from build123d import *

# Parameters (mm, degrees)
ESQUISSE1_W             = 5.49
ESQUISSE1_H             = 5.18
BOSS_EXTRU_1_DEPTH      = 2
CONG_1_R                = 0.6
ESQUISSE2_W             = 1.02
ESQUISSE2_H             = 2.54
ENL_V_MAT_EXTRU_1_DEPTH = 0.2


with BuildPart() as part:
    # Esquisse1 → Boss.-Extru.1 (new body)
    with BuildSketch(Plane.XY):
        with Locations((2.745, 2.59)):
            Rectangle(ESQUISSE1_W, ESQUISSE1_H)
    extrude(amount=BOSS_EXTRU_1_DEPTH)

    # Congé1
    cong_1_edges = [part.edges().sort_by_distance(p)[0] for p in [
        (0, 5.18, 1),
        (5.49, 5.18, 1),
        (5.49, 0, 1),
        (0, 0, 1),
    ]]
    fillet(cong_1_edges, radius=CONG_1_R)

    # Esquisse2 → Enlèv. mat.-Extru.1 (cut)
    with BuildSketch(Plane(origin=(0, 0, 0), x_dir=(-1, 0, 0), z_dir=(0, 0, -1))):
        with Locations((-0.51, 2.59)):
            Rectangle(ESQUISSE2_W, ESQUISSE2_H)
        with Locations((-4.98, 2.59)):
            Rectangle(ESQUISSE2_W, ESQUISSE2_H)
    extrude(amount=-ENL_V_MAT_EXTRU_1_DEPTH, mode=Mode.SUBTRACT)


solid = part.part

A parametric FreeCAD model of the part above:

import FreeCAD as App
import Part
import Sketcher
from FreeCAD import Vector


def edges_at(feature, points):
    """Names of the edges that pass closest to the given points."""
    edges = feature.Shape.Edges
    near = lambda p: min(range(len(edges)), key=lambda i: edges[i].distToShape(Part.Vertex(*p))[0])
    return sorted({f"Edge{near(p) + 1}" for p in points})


def add_polygon(sketch, points):
    """Adds a closed chain of lines whose ends are joined by coincident constraints."""
    first, n = sketch.GeometryCount, len(points)
    for a, b in zip(points, points[1:] + points[:1]):
        sketch.addGeometry(Part.LineSegment(App.Vector(*a, 0), App.Vector(*b, 0)), False)
    for i in range(n):
        sketch.addConstraint(Sketcher.Constraint("Coincident", first + i, 2, first + (i + 1) % n, 1))

doc = App.newDocument("Part")
body = doc.addObject("PartDesign::Body", "Body")

# Sketch on XY plane
sketch1 = body.newObject("Sketcher::SketchObject", "Sketch")
sketch1.AttachmentSupport = (doc.getObject("XY_Plane"), [""])
sketch1.MapMode = "FlatFace"
add_polygon(sketch1, [(0, 5), (0, 0), (5, 0), (5, 5)])  # lines 0-3
sketch1.addConstraint([
    Sketcher.Constraint("Vertical", 0),
    Sketcher.Constraint("Horizontal", 1),
    Sketcher.Constraint("Vertical", 2),
    Sketcher.Constraint("Horizontal", 3),
    Sketcher.Constraint("Coincident", 0, 2, -1, 1),
    Sketcher.Constraint("DistanceX", 1, 1, 1, 2, 5.49),
    Sketcher.Constraint("DistanceY", 0, 2, 0, 1, 5.18),
])
pad1 = body.newObject("PartDesign::Pad", "Pad")
pad1.Profile = sketch1
pad1.Length = 2
doc.recompute()

fillet = body.newObject("PartDesign::Fillet", "Fillet")
fillet.Base = (pad1, edges_at(pad1, [
    (0, 5.18, 1),
    (5.49, 5.18, 1),
    (5.49, 0, 1),
    (0, 0, 1),
]))
fillet.Radius = 0.6

# Sketch on XY plane
sketch2 = body.newObject("Sketcher::SketchObject", "Sketch001")
sketch2.AttachmentSupport = (doc.getObject("XY_Plane"), [""])
sketch2.MapMode = "FlatFace"
add_polygon(sketch2, [(1, 3.9), (1, 1.3), (0, 1.3), (0, 3.9)])  # lines 0-3
add_polygon(sketch2, [(5.5, 3.9), (5.5, 1.3), (4.5, 1.3), (4.5, 3.9)])  # lines 4-7
sketch2.addConstraint([
    Sketcher.Constraint("Vertical", 0),
    Sketcher.Constraint("Horizontal", 1),
    Sketcher.Constraint("Vertical", 2),
    Sketcher.Constraint("Horizontal", 3),
    Sketcher.Constraint("Vertical", 4),
    Sketcher.Constraint("Horizontal", 5),
    Sketcher.Constraint("Vertical", 6),
    Sketcher.Constraint("Horizontal", 7),
    Sketcher.Constraint("PointOnObject", 1, 2, -2),
    Sketcher.Constraint("Horizontal", 1, 2, 4, 2),
    Sketcher.Constraint("Horizontal", 3, 2, 6, 2),
    Sketcher.Constraint("Equal", 3, 5),
    Sketcher.Constraint("DistanceX", 1, 2, 1, 1, 1.02),
    Sketcher.Constraint("DistanceY", 0, 2, 0, 1, 2.54),
    Sketcher.Constraint("DistanceY", -1, 1, 0, 2, 1.32),
    Sketcher.Constraint("DistanceX", -1, 1, 4, 2, 5.49),
])
pocket1 = body.newObject("PartDesign::Pocket", "Pocket")
pocket1.Profile = sketch2
pocket1.Length = 0.2
pocket1.Reversed = True

doc.recompute()
